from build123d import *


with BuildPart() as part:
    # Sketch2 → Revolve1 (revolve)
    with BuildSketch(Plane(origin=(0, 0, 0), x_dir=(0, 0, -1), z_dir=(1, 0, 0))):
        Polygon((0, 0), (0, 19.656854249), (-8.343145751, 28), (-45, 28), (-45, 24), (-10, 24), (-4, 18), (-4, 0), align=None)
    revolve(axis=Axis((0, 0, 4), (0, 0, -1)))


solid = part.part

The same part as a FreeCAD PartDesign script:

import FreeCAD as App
import Part
import Sketcher

V = App.Vector
Q = App.Units.Quantity


def add_polygon(sketch, points):
    """Adds a closed chain of lines whose ends are joined by coincident constraints."""
    first, n = sketch.GeometryCount, len(points)
    for a, b in zip(points, points[1:] + points[:1]):
        sketch.addGeometry(Part.LineSegment(App.Vector(*a, 0), App.Vector(*b, 0)), False)
    for i in range(n):
        sketch.addConstraint(Sketcher.Constraint("Coincident", first + i, 2, first + (i + 1) % n, 1))

doc = App.newDocument("Part")
params = doc.addObject("Spreadsheet::Sheet", "Params")
for row, (alias, value) in enumerate([
    ("sketch1_width", "4 mm"),
    ("sketch1_width2", "18 mm"),
    ("sketch1_height", "35 mm"),
    ("revolution_angle", "360 deg"),
], start=1):
    params.set(f"A{row}", alias)
    params.set(f"B{row}", "=" + value)
    params.setAlias(f"B{row}", alias)

body = doc.addObject("PartDesign::Body", "Body")

sketch1 = doc.addObject("Sketcher::SketchObject", "Sketch")
body.addObject(sketch1)
sketch1.AttachmentSupport = (doc.YZ_Plane, [""])
sketch1.MapMode = "FlatFace"
add_polygon(sketch1, [(0, 0), (19.656854, 0), (28, 8.343146), (28, 45), (24, 45), (24, 10), (18, 4), (0, 4)])
sketch1.addConstraint([
    Sketcher.Constraint("Horizontal", 0),
    Sketcher.Constraint("Vertical", 2),
    Sketcher.Constraint("Horizontal", 3),
    Sketcher.Constraint("Vertical", 4),
    Sketcher.Constraint("Horizontal", 6),
    Sketcher.Constraint("Vertical", 7),
    Sketcher.Constraint("Coincident", 7, 2, -1, 1),
    Sketcher.Constraint("Parallel", 1, 5),
    Sketcher.Constraint("Equal", 3, 7),
    Sketcher.Constraint("DistanceX", 3, 2, 3, 1, 4.0),
    Sketcher.Constraint("DistanceX", 6, 2, 6, 1, 18.0),
    Sketcher.Constraint("DistanceY", 4, 2, 4, 1, 35.0),
    Sketcher.Constraint("Angle", 1, Q("45 deg")),
    Sketcher.Constraint("DistanceX", -1, 1, 1, 2, 28.0),
    Sketcher.Constraint("Distance", 1, 11.79899),
])
sketch1.setExpression("Constraints[17]", "Params.sketch1_width")
sketch1.setExpression("Constraints[18]", "Params.sketch1_width2")
sketch1.setExpression("Constraints[19]", "Params.sketch1_height")
revolution = doc.addObject("PartDesign::Revolution", "Revolution")
body.addObject(revolution)
revolution.Profile = sketch1
revolution.ReferenceAxis = (sketch1, ["V_Axis"])
revolution.setExpression("Angle", "Params.revolution_angle")

doc.recompute()
